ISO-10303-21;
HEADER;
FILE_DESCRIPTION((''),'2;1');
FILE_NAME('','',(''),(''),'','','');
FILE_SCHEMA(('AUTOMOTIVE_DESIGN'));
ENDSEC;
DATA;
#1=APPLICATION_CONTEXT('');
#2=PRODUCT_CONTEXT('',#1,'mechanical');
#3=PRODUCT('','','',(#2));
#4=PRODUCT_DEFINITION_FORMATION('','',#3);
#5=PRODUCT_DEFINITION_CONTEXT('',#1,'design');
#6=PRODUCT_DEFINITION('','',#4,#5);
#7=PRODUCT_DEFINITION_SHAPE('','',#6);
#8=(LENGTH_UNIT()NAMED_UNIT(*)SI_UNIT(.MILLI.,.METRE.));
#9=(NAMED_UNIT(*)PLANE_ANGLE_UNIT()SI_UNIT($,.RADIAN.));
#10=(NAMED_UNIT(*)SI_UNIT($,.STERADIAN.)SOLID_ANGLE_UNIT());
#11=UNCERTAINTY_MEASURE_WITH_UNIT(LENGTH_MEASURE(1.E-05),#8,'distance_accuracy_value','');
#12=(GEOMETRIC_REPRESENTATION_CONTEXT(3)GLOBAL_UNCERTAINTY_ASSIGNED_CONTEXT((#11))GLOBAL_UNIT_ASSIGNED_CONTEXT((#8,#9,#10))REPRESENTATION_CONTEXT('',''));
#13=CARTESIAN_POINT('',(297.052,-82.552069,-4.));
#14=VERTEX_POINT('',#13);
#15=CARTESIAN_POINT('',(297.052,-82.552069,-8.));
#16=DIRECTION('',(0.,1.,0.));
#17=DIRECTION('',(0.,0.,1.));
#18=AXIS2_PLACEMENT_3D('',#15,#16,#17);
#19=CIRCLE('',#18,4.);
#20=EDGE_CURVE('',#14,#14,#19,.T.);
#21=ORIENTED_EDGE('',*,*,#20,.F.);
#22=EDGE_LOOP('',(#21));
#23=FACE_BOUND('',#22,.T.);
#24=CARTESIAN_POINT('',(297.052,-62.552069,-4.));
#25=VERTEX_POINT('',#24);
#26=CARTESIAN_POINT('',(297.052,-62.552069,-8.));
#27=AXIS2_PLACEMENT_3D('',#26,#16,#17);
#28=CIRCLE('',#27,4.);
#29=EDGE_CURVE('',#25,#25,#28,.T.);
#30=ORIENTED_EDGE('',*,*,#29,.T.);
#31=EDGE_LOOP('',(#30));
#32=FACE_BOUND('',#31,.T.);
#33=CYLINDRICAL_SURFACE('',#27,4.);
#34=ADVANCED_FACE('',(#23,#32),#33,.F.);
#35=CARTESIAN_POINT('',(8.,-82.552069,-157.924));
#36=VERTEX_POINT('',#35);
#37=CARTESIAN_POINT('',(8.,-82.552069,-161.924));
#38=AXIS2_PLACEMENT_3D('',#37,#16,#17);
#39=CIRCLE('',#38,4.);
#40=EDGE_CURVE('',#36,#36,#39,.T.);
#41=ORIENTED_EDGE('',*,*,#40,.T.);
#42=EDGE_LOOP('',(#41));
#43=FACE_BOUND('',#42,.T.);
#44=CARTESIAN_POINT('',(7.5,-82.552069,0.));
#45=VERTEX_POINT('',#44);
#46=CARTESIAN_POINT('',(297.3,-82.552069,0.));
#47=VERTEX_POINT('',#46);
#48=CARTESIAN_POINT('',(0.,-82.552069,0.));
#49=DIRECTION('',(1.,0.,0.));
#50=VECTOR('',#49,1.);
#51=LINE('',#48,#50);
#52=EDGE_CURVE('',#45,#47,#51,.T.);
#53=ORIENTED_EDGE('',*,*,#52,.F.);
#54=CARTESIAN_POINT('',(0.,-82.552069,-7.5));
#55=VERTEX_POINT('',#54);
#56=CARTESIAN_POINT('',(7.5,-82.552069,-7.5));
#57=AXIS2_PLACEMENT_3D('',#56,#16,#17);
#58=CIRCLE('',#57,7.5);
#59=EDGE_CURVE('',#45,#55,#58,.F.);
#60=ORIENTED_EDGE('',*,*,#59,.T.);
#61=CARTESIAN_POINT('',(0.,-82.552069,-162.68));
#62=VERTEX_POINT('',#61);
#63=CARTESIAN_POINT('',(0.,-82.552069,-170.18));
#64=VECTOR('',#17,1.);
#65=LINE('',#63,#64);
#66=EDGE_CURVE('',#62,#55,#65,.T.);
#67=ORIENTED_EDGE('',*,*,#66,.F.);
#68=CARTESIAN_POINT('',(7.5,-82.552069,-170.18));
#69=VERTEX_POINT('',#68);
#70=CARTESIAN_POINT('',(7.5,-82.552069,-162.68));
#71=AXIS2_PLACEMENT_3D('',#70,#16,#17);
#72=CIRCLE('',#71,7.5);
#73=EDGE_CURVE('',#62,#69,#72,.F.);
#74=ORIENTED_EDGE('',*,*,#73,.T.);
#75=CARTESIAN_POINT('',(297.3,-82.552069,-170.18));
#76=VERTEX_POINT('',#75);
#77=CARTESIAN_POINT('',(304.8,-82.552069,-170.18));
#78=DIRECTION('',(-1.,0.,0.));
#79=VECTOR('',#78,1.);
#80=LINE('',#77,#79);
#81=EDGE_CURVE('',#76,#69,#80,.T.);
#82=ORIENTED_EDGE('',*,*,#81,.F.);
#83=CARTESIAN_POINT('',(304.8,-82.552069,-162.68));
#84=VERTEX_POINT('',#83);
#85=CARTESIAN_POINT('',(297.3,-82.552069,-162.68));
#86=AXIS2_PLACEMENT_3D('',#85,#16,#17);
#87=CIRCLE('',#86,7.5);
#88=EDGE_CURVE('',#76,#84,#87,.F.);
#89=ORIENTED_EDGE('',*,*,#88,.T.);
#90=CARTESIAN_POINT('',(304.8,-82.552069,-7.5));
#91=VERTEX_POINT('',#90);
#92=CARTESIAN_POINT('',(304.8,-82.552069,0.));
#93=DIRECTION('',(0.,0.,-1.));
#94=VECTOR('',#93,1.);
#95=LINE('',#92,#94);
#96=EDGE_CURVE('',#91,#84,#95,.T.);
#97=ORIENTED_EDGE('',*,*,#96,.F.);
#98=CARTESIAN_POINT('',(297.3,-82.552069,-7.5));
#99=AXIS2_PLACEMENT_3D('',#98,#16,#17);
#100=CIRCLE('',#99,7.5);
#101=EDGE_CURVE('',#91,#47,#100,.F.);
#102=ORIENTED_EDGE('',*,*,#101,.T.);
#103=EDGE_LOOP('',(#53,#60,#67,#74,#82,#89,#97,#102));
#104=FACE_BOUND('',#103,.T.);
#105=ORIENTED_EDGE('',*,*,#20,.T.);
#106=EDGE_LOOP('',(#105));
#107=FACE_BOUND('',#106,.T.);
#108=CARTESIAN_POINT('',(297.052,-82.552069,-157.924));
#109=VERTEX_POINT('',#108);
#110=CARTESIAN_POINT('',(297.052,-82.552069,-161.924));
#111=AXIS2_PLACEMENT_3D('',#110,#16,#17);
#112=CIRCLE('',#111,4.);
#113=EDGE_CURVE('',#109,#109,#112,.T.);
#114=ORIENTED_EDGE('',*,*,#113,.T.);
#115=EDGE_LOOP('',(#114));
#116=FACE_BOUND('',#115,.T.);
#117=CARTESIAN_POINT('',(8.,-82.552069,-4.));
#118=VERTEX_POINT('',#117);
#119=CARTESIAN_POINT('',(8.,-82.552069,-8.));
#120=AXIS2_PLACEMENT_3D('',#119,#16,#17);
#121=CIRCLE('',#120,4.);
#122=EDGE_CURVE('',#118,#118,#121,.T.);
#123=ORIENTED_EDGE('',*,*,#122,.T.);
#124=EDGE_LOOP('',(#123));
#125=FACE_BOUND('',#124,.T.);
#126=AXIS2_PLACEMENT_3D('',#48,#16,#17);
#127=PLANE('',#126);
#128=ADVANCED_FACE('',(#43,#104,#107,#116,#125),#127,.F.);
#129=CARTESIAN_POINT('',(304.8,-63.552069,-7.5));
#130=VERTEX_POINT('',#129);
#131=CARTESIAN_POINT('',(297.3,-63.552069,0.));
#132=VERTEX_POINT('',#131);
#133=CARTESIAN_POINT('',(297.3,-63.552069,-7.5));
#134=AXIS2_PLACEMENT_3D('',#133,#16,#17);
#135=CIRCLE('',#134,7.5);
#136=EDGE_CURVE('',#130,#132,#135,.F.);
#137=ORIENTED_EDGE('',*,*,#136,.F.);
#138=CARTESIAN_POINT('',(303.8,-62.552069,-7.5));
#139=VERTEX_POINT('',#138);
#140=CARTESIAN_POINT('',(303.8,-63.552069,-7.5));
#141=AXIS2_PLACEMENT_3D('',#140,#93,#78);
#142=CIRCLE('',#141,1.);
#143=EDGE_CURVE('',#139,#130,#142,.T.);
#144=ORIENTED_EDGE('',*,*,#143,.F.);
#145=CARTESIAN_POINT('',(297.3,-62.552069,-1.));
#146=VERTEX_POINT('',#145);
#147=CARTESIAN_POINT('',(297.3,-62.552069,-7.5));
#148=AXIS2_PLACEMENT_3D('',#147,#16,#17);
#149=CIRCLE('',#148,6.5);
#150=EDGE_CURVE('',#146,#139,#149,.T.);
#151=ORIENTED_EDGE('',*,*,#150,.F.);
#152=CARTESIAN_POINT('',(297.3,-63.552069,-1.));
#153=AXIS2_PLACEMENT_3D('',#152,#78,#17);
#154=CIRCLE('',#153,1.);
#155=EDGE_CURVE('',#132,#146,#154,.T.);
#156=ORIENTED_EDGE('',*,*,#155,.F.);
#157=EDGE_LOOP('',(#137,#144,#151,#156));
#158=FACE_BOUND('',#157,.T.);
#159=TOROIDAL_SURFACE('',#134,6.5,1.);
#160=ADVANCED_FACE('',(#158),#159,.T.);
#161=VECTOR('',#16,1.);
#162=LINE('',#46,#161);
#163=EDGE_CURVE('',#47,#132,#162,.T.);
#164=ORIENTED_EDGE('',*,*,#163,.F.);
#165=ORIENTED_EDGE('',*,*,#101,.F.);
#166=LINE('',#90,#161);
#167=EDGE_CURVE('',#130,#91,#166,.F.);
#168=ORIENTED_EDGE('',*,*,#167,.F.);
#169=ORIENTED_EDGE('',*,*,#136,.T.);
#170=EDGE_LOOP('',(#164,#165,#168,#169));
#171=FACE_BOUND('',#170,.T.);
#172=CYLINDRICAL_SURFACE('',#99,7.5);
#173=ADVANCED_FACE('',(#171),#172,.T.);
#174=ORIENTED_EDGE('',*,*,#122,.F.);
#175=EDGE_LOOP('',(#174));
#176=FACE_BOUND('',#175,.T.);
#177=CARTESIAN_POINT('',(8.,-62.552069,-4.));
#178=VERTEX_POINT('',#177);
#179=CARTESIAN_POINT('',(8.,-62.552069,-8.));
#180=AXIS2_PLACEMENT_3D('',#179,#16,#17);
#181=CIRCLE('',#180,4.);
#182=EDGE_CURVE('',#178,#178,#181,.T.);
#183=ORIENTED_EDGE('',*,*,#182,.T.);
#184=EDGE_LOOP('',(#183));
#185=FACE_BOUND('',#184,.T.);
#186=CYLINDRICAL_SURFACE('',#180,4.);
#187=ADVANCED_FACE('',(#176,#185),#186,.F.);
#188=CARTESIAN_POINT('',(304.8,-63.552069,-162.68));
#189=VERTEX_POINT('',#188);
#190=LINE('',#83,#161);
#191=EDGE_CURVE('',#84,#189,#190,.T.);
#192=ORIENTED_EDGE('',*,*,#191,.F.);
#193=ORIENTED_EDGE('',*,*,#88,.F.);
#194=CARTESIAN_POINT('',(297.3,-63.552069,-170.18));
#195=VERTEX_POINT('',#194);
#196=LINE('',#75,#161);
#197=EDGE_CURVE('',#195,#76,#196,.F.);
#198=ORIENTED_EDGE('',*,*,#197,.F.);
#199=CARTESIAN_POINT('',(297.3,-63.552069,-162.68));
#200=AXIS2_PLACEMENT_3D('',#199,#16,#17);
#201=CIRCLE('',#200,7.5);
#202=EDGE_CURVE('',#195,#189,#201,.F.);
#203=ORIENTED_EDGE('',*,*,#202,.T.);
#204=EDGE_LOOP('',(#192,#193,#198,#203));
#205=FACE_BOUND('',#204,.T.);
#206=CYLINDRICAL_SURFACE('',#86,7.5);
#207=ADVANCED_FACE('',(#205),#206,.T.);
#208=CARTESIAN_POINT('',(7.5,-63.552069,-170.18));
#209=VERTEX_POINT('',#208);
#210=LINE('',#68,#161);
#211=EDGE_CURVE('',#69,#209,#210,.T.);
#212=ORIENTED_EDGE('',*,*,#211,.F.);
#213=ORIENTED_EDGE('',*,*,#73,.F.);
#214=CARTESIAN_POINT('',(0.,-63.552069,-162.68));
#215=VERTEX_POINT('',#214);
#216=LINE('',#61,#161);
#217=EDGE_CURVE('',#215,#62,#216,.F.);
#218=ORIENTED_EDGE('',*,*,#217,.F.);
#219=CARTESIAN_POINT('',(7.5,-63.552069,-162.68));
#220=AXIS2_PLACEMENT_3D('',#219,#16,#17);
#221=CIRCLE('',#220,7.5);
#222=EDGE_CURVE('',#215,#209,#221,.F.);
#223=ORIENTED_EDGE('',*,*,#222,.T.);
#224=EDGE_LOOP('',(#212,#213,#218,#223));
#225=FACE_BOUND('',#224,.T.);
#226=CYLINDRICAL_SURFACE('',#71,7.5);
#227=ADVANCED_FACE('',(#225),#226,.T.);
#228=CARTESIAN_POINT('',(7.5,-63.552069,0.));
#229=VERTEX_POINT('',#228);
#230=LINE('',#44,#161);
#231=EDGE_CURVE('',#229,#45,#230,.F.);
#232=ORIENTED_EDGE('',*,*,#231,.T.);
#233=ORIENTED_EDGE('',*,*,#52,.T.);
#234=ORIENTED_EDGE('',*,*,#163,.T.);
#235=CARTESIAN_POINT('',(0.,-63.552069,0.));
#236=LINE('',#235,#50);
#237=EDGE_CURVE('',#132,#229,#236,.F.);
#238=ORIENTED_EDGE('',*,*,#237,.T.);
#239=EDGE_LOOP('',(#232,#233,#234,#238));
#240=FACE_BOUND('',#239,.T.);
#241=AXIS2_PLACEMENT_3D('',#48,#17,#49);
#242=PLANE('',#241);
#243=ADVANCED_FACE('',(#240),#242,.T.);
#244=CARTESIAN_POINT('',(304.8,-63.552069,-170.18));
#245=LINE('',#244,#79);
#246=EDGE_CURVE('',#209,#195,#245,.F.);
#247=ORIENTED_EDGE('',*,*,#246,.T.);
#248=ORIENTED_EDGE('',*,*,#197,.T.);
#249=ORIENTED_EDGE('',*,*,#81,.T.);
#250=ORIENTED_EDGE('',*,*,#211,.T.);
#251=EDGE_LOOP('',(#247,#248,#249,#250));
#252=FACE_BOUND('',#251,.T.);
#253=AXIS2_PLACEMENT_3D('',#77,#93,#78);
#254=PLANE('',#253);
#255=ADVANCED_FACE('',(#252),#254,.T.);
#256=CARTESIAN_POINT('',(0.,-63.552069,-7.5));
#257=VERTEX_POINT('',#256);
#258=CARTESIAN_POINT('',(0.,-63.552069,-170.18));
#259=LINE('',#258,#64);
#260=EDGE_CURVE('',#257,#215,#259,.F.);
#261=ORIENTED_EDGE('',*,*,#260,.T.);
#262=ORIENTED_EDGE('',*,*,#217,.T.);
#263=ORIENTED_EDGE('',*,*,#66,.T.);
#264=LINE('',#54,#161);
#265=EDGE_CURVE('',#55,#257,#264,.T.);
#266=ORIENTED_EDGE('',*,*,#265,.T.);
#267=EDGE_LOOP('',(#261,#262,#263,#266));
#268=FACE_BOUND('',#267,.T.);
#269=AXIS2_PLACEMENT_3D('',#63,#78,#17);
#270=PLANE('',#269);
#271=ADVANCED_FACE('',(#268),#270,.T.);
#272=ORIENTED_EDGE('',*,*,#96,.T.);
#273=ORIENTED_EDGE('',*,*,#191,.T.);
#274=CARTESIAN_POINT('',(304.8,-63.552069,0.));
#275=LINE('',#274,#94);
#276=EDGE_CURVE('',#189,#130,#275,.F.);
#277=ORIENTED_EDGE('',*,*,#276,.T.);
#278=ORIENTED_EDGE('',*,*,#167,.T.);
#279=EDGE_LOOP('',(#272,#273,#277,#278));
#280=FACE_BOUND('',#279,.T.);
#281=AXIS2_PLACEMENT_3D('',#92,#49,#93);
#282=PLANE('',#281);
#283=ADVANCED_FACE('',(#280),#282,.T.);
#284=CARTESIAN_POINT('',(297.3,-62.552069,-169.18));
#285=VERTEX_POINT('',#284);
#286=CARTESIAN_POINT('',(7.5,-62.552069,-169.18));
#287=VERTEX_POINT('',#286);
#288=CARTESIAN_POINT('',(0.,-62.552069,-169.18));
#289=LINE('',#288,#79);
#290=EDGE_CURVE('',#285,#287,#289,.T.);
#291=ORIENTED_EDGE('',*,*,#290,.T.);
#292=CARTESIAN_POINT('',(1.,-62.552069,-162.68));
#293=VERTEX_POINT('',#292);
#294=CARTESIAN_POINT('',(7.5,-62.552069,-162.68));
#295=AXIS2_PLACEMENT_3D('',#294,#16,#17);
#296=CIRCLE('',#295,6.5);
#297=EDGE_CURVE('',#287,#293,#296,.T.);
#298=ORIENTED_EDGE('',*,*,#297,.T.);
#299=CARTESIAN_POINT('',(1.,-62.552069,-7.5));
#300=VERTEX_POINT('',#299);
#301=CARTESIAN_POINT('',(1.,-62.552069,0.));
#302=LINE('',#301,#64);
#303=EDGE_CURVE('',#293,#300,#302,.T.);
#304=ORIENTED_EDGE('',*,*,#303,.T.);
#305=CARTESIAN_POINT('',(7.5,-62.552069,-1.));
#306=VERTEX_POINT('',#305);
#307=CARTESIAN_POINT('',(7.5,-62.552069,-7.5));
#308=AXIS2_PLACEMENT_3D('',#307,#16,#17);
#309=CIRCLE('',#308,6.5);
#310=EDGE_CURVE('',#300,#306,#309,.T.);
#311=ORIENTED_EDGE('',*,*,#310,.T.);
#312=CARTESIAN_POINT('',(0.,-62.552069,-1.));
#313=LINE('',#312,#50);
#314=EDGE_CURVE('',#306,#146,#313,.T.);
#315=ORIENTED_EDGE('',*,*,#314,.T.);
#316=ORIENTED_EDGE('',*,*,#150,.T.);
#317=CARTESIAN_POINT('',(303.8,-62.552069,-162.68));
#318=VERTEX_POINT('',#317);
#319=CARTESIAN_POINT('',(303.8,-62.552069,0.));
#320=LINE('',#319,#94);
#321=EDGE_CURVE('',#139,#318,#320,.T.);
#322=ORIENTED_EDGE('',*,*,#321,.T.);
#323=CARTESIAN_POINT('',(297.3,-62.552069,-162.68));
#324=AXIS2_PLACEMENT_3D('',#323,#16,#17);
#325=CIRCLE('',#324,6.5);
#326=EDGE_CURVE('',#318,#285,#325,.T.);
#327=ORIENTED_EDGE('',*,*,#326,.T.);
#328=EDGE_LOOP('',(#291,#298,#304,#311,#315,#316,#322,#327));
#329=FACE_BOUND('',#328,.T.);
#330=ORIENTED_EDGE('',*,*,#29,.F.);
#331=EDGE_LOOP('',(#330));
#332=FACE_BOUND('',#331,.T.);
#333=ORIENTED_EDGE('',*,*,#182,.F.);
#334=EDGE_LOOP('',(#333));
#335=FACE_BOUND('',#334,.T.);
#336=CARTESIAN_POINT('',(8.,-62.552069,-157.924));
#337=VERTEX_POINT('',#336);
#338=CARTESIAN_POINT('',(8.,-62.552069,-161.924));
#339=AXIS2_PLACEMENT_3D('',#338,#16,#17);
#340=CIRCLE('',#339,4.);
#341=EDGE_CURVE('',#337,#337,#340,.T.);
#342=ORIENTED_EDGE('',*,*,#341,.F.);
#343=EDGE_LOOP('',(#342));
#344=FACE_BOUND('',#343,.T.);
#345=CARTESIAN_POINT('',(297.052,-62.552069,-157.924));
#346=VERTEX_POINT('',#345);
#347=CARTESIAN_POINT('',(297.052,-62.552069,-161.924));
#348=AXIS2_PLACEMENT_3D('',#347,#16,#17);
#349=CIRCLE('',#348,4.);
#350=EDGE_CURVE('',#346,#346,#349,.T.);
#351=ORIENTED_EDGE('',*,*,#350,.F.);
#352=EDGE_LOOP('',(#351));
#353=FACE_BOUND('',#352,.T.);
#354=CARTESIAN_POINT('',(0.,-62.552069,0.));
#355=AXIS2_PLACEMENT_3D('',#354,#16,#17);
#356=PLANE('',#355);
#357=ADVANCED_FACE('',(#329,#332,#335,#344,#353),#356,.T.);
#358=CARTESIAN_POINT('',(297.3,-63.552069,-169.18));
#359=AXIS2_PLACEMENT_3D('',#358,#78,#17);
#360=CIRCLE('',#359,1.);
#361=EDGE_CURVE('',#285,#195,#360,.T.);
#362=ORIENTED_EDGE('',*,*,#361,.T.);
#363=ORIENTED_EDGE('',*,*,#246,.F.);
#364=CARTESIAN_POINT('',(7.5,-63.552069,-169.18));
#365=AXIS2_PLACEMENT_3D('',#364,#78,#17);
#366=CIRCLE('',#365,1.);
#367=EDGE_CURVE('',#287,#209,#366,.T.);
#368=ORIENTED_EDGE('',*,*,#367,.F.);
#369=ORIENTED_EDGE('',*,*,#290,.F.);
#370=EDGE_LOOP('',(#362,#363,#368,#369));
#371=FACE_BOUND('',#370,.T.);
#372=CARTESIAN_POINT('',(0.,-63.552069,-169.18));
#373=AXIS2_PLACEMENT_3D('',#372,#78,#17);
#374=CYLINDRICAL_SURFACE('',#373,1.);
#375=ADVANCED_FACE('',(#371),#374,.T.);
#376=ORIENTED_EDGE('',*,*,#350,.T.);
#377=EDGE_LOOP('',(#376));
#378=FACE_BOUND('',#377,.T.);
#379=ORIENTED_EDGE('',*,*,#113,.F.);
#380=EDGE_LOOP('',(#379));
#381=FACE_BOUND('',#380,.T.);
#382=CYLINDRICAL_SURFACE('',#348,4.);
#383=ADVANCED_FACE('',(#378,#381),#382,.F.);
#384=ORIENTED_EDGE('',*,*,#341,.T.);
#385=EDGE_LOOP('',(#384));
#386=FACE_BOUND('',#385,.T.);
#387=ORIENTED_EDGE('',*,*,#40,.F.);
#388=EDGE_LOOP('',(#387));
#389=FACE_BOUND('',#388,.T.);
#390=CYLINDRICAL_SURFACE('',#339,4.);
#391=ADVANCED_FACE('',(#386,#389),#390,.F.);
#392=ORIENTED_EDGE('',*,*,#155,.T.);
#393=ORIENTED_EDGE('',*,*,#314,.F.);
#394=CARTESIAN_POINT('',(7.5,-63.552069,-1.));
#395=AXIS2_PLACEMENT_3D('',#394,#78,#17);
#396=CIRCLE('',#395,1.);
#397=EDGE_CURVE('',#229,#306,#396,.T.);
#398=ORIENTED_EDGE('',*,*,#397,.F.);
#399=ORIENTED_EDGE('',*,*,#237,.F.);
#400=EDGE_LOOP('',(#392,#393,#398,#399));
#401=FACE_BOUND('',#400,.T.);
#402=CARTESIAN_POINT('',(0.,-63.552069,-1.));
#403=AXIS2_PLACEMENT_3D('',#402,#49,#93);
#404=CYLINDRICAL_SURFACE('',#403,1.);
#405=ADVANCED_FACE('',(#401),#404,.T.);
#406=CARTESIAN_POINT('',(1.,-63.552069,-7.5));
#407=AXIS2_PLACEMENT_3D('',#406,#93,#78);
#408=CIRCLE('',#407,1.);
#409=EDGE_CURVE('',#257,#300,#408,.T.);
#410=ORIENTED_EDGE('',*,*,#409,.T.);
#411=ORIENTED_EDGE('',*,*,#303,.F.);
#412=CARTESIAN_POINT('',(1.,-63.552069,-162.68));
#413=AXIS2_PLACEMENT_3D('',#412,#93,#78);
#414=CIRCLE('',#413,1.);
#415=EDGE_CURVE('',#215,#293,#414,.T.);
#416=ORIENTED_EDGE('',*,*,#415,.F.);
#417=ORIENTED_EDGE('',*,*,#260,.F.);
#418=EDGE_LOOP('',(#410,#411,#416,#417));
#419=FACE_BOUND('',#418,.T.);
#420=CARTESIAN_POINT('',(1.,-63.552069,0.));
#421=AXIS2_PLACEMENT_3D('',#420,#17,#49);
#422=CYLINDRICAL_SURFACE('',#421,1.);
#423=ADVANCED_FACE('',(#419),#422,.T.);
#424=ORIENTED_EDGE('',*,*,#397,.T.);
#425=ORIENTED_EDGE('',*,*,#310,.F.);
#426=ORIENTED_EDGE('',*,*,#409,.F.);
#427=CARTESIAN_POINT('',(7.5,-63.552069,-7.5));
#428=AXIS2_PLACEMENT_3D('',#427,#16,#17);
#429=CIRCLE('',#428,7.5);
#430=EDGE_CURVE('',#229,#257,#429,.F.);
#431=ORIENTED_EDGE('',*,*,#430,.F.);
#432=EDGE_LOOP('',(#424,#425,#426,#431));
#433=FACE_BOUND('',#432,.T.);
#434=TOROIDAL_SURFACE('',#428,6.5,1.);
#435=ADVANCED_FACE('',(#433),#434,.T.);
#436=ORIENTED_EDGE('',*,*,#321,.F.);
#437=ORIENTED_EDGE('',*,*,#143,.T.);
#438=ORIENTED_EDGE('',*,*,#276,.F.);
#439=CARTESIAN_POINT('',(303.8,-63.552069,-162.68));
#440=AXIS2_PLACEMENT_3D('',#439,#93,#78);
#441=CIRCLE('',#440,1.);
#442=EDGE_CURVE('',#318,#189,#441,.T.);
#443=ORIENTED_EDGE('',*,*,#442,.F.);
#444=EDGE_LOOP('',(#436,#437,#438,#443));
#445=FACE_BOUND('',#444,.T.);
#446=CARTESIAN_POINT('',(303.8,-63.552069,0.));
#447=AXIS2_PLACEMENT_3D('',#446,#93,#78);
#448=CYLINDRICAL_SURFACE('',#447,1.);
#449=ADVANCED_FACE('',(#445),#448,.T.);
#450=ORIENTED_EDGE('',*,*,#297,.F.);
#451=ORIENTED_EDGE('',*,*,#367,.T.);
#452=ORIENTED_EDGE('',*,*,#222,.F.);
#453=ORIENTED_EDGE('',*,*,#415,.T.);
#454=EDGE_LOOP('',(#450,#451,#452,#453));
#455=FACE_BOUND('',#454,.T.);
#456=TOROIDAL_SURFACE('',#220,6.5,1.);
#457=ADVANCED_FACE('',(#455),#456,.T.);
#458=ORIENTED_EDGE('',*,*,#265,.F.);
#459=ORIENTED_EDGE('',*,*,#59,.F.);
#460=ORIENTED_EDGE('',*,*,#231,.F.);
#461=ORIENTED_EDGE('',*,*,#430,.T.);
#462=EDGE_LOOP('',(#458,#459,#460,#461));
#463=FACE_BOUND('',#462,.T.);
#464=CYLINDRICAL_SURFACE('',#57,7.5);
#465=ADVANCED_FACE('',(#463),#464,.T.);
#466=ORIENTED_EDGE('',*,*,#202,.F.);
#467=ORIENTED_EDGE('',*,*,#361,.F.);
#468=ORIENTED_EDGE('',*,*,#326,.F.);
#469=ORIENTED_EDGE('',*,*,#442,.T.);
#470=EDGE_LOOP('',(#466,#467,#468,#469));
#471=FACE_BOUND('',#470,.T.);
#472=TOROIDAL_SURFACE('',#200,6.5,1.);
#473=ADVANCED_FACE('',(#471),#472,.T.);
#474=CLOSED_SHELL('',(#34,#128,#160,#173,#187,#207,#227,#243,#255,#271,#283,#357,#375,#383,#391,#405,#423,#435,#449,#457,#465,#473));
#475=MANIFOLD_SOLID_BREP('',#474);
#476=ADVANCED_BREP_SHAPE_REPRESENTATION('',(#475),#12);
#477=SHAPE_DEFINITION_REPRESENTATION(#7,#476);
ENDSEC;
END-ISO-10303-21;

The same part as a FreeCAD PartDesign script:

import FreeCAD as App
import Part
import Sketcher

V = App.Vector


def edges_at(feature, points):
    """Names of the edges that pass closest to the given points."""
    edges = feature.Shape.Edges
    near = lambda p: min(range(len(edges)), key=lambda i: edges[i].distToShape(Part.Vertex(*p))[0])
    return sorted({f"Edge{near(p) + 1}" for p in points})

doc = App.newDocument("Part")
body = doc.addObject("PartDesign::Body", "Body")

# Sketch on XZ plane
sketch1 = body.newObject("Sketcher::SketchObject", "Sketch")
sketch1.AttachmentSupport = (doc.getObject("XZ_Plane"), [""])
sketch1.MapMode = "FlatFace"
sketch1.AttachmentOffset = App.Placement(V(0, 0, 62.552069), App.Rotation())
sketch1.addGeometry([
    Part.LineSegment(V(0, -170, 0), V(0, 0, 0)),
    Part.LineSegment(V(0, 0, 0), V(305, 0, 0)),
    Part.LineSegment(V(305, 0, 0), V(305, -170, 0)),
    Part.LineSegment(V(305, -170, 0), V(0, -170, 0)),
], False)
sketch1.addConstraint([
    Sketcher.Constraint("Coincident", 0, 2, 1, 1),
    Sketcher.Constraint("Coincident", 1, 2, 2, 1),
    Sketcher.Constraint("Coincident", 2, 2, 3, 1),
    Sketcher.Constraint("Coincident", 3, 2, 0, 1),
    Sketcher.Constraint("Vertical", 0),
    Sketcher.Constraint("Horizontal", 1),
    Sketcher.Constraint("Vertical", 2),
    Sketcher.Constraint("Horizontal", 3),
    Sketcher.Constraint("Coincident", 0, 2, -1, 1),
    Sketcher.Constraint("DistanceX", 1, 1, 1, 2, 304.8),
    Sketcher.Constraint("DistanceY", 0, 1, 0, 2, 170.18),
])
pad1 = body.newObject("PartDesign::Pad", "Pad")
pad1.Profile = sketch1
pad1.Length = 20

# Sketch on XZ plane
sketch2 = body.newObject("Sketcher::SketchObject", "Sketch001")
sketch2.AttachmentSupport = (doc.getObject("XZ_Plane"), [""])
sketch2.MapMode = "FlatFace"
sketch2.AttachmentOffset = App.Placement(V(0, 0, 62.552069), App.Rotation())
sketch2.addGeometry([
    Part.Circle(V(8, -8, 0), V(0, 0, 1), 4),
    Part.Circle(V(297.1, -8, 0), V(0, 0, 1), 4),
    Part.Circle(V(8, -161.9, 0), V(0, 0, 1), 4),
    Part.Circle(V(297.1, -161.9, 0), V(0, 0, 1), 4),
], False)
sketch2.addConstraint([
    Sketcher.Constraint("Equal", 0, 1),
    Sketcher.Constraint("Equal", 1, 2),
    Sketcher.Constraint("Equal", 2, 3),
    Sketcher.Constraint("Horizontal", 0, 3, 1, 3),
    Sketcher.Constraint("Horizontal", 2, 3, 3, 3),
    Sketcher.Constraint("Vertical", 0, 3, 2, 3),
    Sketcher.Constraint("Vertical", 1, 3, 3, 3),
    Sketcher.Constraint("Diameter", 0, 8.0),
    Sketcher.Constraint("DistanceX", -1, 1, 0, 3, 8.0),
    Sketcher.Constraint("DistanceY", 0, 3, -1, 1, 8.0),
    Sketcher.Constraint("DistanceX", -1, 1, 1, 3, 297.052),
    Sketcher.Constraint("DistanceY", 2, 3, -1, 1, 161.924),
])
doc.recompute()
hole = body.newObject("PartDesign::Hole", "Hole")
hole.Profile = sketch2
hole.ThreadType = "None"
hole.Diameter = 8
hole.DepthType = "ThroughAll"
hole.Reversed = True
doc.recompute()

fillet = body.newObject("PartDesign::Fillet", "Fillet")
fillet.Base = (hole, edges_at(hole, [
    (0, -72.552, -170.18),
    (304.8, -72.552, -170.18),
    (304.8, -72.552, 0),
    (0, -72.552, 0),
]))
fillet.Radius = 7.5
doc.recompute()

fillet2 = body.newObject("PartDesign::Fillet", "Fillet001")
fillet2.Base = (fillet, edges_at(fillet, [
    (304.8, -62.552, -85.09),
    (0, -62.552, -85.09),
    (152.4, -62.552, 0),
    (152.4, -62.552, -170.18),
    (2.197, -62.552, -2.197),
    (2.197, -62.552, -167.983),
    (302.603, -62.552, -2.197),
    (302.603, -62.552, -167.983),
]))
fillet2.Radius = 1

doc.recompute()
